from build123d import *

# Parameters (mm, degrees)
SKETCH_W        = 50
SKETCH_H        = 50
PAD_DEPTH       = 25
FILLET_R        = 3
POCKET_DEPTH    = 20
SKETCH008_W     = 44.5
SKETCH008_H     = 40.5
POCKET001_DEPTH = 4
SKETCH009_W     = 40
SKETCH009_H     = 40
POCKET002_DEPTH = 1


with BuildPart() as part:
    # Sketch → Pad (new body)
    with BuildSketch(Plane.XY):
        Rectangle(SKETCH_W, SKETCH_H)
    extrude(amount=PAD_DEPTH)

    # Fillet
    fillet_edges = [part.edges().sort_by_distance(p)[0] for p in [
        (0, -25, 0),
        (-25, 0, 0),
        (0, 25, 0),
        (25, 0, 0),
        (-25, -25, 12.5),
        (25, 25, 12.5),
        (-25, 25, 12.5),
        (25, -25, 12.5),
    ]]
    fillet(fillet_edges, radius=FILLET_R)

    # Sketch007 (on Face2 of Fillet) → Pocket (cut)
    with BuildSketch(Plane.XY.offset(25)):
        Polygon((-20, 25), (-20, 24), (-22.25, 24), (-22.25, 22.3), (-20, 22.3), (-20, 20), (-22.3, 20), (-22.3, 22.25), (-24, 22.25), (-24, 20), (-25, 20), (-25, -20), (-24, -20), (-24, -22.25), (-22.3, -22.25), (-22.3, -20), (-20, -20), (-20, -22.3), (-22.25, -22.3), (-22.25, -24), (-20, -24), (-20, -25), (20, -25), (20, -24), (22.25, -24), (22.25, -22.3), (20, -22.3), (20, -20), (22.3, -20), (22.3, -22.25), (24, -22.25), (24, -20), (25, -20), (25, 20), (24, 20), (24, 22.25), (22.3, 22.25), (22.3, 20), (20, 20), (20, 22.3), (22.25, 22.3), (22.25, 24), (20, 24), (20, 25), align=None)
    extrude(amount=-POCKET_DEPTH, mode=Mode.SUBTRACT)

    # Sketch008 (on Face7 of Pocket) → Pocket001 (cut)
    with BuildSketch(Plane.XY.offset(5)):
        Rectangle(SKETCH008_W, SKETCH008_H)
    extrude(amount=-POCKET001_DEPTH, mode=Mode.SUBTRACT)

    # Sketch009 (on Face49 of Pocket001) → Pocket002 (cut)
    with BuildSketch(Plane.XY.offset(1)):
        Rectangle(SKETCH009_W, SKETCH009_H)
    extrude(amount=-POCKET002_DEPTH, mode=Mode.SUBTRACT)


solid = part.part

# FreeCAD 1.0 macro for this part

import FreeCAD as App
import Part
import Sketcher
from FreeCAD import Vector


def edges_at(feature, points):
    """Names of the edges that pass closest to the given points."""
    edges = feature.Shape.Edges
    near = lambda p: min(range(len(edges)), key=lambda i: edges[i].distToShape(Part.Vertex(*p))[0])
    return sorted({f"Edge{near(p) + 1}" for p in points})


def add_polygon(sketch, points):
    """Adds a closed chain of lines whose ends are joined by coincident constraints."""
    first, n = sketch.GeometryCount, len(points)
    for a, b in zip(points, points[1:] + points[:1]):
        sketch.addGeometry(Part.LineSegment(App.Vector(*a, 0), App.Vector(*b, 0)), False)
    for i in range(n):
        sketch.addConstraint(Sketcher.Constraint("Coincident", first + i, 2, first + (i + 1) % n, 1))

doc = App.newDocument("Part")
body = doc.addObject("PartDesign::Body", "Body")

# Sketch on XY plane
sketch1 = body.newObject("Sketcher::SketchObject", "Sketch")
sketch1.AttachmentSupport = (doc.getObject("XY_Plane"), [""])
sketch1.MapMode = "FlatFace"
add_polygon(sketch1, [(-25, 25), (-25, -25), (25, -25), (25, 25)])  # lines 0-3
sketch1.addConstraint([
    Sketcher.Constraint("Vertical", 0),
    Sketcher.Constraint("Horizontal", 1),
    Sketcher.Constraint("Vertical", 2),
    Sketcher.Constraint("Horizontal", 3),
    Sketcher.Constraint("Symmetric", 0, 2, 2, 2, -1, 1),
    Sketcher.Constraint("Equal", 3, 0),
    Sketcher.Constraint("DistanceX", 1, 1, 1, 2, 50.0),
])
pad1 = body.newObject("PartDesign::Pad", "Pad")
pad1.Profile = sketch1
pad1.Length = 25
doc.recompute()

fillet = body.newObject("PartDesign::Fillet", "Fillet")
fillet.Base = (pad1, edges_at(pad1, [
    (0, -25, 0),
    (-25, 0, 0),
    (0, 25, 0),
    (25, 0, 0),
    (-25, -25, 12.5),
    (25, 25, 12.5),
    (-25, 25, 12.5),
    (25, -25, 12.5),
]))
fillet.Radius = 3

# Sketch on XY plane
sketch2 = body.newObject("Sketcher::SketchObject", "Sketch001")
sketch2.AttachmentSupport = (doc.getObject("XY_Plane"), [""])
sketch2.MapMode = "FlatFace"
sketch2.AttachmentOffset = App.Placement(Vector(0, 0, 25), App.Rotation())
add_polygon(sketch2, [(-20, 25), (-20, 24), (-22.2, 24), (-22.2, 22.3), (-20, 22.3), (-20, 20), (-22.3, 20), (-22.3, 22.2), (-24, 22.2), (-24, 20), (-25, 20), (-25, -20), (-24, -20), (-24, -22.2), (-22.3, -22.2), (-22.3, -20), (-20, -20), (-20, -22.3), (-22.2, -22.3), (-22.2, -24), (-20, -24), (-20, -25), (20, -25), (20, -24), (22.2, -24), (22.2, -22.3), (20, -22.3), (20, -20), (22.3, -20), (22.3, -22.2), (24, -22.2), (24, -20), (25, -20), (25, 20), (24, 20), (24, 22.2), (22.3, 22.2), (22.3, 20), (20, 20), (20, 22.3), (22.2, 22.3), (22.2, 24), (20, 24), (20, 25)])  # lines 0-43
sketch2.addConstraint([
    Sketcher.Constraint("Vertical", 0),
    Sketcher.Constraint("Horizontal", 1),
    Sketcher.Constraint("Vertical", 2),
    Sketcher.Constraint("Horizontal", 3),
    Sketcher.Constraint("Vertical", 4),
    Sketcher.Constraint("Horizontal", 5),
    Sketcher.Constraint("Vertical", 6),
    Sketcher.Constraint("Horizontal", 7),
    Sketcher.Constraint("Vertical", 8),
    Sketcher.Constraint("Horizontal", 9),
    Sketcher.Constraint("Vertical", 10),
    Sketcher.Constraint("Horizontal", 11),
    Sketcher.Constraint("Vertical", 12),
    Sketcher.Constraint("Horizontal", 13),
    Sketcher.Constraint("Vertical", 14),
    Sketcher.Constraint("Horizontal", 15),
    Sketcher.Constraint("Vertical", 16),
    Sketcher.Constraint("Horizontal", 17),
    Sketcher.Constraint("Vertical", 18),
    Sketcher.Constraint("Horizontal", 19),
    Sketcher.Constraint("Vertical", 20),
    Sketcher.Constraint("Horizontal", 21),
    Sketcher.Constraint("Vertical", 22),
    Sketcher.Constraint("Horizontal", 23),
    Sketcher.Constraint("Vertical", 24),
    Sketcher.Constraint("Horizontal", 25),
    Sketcher.Constraint("Vertical", 26),
    Sketcher.Constraint("Horizontal", 27),
    Sketcher.Constraint("Vertical", 28),
    Sketcher.Constraint("Horizontal", 29),
    Sketcher.Constraint("Vertical", 30),
    Sketcher.Constraint("Horizontal", 31),
    Sketcher.Constraint("Vertical", 32),
    Sketcher.Constraint("Horizontal", 33),
    Sketcher.Constraint("Vertical", 34),
    Sketcher.Constraint("Horizontal", 35),
    Sketcher.Constraint("Vertical", 36),
    Sketcher.Constraint("Horizontal", 37),
    Sketcher.Constraint("Vertical", 38),
    Sketcher.Constraint("Horizontal", 39),
    Sketcher.Constraint("Vertical", 40),
    Sketcher.Constraint("Horizontal", 41),
    Sketcher.Constraint("Vertical", 42),
    Sketcher.Constraint("Horizontal", 43),
    Sketcher.Constraint("Symmetric", 0, 2, 22, 2, -1, 1),
    Sketcher.Constraint("Symmetric", 2, 2, 24, 2, -1, 1),
    Sketcher.Constraint("Symmetric", 4, 2, 26, 2, -1, 1),
    Sketcher.Constraint("Symmetric", 6, 2, 28, 2, -1, 1),
    Sketcher.Constraint("Symmetric", 8, 2, 30, 2, -1, 1),
    Sketcher.Constraint("Symmetric", 10, 2, 32, 2, -1, 1),
    Sketcher.Constraint("Symmetric", 12, 2, 34, 2, -1, 1),
    Sketcher.Constraint("Symmetric", 14, 2, 36, 2, -1, 1),
    Sketcher.Constraint("Symmetric", 16, 2, 38, 2, -1, 1),
    Sketcher.Constraint("Symmetric", 18, 2, 40, 2, -1, 1),
    Sketcher.Constraint("Symmetric", 20, 2, 42, 2, -1, 1),
    Sketcher.Constraint("Symmetric", 19, 2, 22, 2, -2),
    Sketcher.Constraint("Symmetric", 17, 2, 24, 2, -2),
    Sketcher.Constraint("Symmetric", 15, 2, 26, 2, -2),
    Sketcher.Constraint("Symmetric", 13, 2, 28, 2, -2),
    Sketcher.Constraint("Symmetric", 11, 2, 30, 2, -2),
    Sketcher.Constraint("Horizontal", 5, 2, 8, 2),
    Sketcher.Constraint("Vertical", 0, 2, 3, 2),
    Sketcher.Constraint("Equal", 33, 0),
    Sketcher.Constraint("Equal", 35, 2),
    Sketcher.Constraint("Equal", 37, 4),
    Sketcher.Constraint("Equal", 41, 6),
    Sketcher.Constraint("Equal", 43, 10),
    Sketcher.Constraint("DistanceX", 9, 2, 9, 1, 1.0),
    Sketcher.Constraint("DistanceX", 21, 1, 21, 2, 40.0),
    Sketcher.Constraint("DistanceX", 5, 2, 5, 1, 2.3),
    Sketcher.Constraint("DistanceX", 7, 2, 7, 1, 1.7),
    Sketcher.Constraint("DistanceX", 1, 2, 1, 1, 2.25),
])
pocket1 = body.newObject("PartDesign::Pocket", "Pocket")
pocket1.Profile = sketch2
pocket1.Length = 20

# Sketch on XY plane
sketch3 = body.newObject("Sketcher::SketchObject", "Sketch002")
sketch3.AttachmentSupport = (doc.getObject("XY_Plane"), [""])
sketch3.MapMode = "FlatFace"
sketch3.AttachmentOffset = App.Placement(Vector(0, 0, 5), App.Rotation())
add_polygon(sketch3, [(-22, 20), (-22, -20), (22, -20), (22, 20)])  # lines 0-3
sketch3.addConstraint([
    Sketcher.Constraint("Vertical", 0),
    Sketcher.Constraint("Horizontal", 1),
    Sketcher.Constraint("Vertical", 2),
    Sketcher.Constraint("Horizontal", 3),
    Sketcher.Constraint("Symmetric", 0, 2, 2, 2, -1, 1),
    Sketcher.Constraint("DistanceX", 1, 1, 1, 2, 44.5),
    Sketcher.Constraint("DistanceY", 0, 2, 0, 1, 40.5),
])
pocket2 = body.newObject("PartDesign::Pocket", "Pocket001")
pocket2.Profile = sketch3
pocket2.Length = 4

# Sketch on XY plane
sketch4 = body.newObject("Sketcher::SketchObject", "Sketch003")
sketch4.AttachmentSupport = (doc.getObject("XY_Plane"), [""])
sketch4.MapMode = "FlatFace"
sketch4.AttachmentOffset = App.Placement(Vector(0, 0, 1), App.Rotation())
add_polygon(sketch4, [(-20, 20), (-20, -20), (20, -20), (20, 20)])  # lines 0-3
sketch4.addConstraint([
    Sketcher.Constraint("Vertical", 0),
    Sketcher.Constraint("Horizontal", 1),
    Sketcher.Constraint("Vertical", 2),
    Sketcher.Constraint("Horizontal", 3),
    Sketcher.Constraint("Symmetric", 0, 2, 2, 2, -1, 1),
    Sketcher.Constraint("Equal", 3, 0),
    Sketcher.Constraint("DistanceX", 1, 1, 1, 2, 40.0),
])
pocket3 = body.newObject("PartDesign::Pocket", "Pocket002")
pocket3.Profile = sketch4
pocket3.Length = 1

doc.recompute()
